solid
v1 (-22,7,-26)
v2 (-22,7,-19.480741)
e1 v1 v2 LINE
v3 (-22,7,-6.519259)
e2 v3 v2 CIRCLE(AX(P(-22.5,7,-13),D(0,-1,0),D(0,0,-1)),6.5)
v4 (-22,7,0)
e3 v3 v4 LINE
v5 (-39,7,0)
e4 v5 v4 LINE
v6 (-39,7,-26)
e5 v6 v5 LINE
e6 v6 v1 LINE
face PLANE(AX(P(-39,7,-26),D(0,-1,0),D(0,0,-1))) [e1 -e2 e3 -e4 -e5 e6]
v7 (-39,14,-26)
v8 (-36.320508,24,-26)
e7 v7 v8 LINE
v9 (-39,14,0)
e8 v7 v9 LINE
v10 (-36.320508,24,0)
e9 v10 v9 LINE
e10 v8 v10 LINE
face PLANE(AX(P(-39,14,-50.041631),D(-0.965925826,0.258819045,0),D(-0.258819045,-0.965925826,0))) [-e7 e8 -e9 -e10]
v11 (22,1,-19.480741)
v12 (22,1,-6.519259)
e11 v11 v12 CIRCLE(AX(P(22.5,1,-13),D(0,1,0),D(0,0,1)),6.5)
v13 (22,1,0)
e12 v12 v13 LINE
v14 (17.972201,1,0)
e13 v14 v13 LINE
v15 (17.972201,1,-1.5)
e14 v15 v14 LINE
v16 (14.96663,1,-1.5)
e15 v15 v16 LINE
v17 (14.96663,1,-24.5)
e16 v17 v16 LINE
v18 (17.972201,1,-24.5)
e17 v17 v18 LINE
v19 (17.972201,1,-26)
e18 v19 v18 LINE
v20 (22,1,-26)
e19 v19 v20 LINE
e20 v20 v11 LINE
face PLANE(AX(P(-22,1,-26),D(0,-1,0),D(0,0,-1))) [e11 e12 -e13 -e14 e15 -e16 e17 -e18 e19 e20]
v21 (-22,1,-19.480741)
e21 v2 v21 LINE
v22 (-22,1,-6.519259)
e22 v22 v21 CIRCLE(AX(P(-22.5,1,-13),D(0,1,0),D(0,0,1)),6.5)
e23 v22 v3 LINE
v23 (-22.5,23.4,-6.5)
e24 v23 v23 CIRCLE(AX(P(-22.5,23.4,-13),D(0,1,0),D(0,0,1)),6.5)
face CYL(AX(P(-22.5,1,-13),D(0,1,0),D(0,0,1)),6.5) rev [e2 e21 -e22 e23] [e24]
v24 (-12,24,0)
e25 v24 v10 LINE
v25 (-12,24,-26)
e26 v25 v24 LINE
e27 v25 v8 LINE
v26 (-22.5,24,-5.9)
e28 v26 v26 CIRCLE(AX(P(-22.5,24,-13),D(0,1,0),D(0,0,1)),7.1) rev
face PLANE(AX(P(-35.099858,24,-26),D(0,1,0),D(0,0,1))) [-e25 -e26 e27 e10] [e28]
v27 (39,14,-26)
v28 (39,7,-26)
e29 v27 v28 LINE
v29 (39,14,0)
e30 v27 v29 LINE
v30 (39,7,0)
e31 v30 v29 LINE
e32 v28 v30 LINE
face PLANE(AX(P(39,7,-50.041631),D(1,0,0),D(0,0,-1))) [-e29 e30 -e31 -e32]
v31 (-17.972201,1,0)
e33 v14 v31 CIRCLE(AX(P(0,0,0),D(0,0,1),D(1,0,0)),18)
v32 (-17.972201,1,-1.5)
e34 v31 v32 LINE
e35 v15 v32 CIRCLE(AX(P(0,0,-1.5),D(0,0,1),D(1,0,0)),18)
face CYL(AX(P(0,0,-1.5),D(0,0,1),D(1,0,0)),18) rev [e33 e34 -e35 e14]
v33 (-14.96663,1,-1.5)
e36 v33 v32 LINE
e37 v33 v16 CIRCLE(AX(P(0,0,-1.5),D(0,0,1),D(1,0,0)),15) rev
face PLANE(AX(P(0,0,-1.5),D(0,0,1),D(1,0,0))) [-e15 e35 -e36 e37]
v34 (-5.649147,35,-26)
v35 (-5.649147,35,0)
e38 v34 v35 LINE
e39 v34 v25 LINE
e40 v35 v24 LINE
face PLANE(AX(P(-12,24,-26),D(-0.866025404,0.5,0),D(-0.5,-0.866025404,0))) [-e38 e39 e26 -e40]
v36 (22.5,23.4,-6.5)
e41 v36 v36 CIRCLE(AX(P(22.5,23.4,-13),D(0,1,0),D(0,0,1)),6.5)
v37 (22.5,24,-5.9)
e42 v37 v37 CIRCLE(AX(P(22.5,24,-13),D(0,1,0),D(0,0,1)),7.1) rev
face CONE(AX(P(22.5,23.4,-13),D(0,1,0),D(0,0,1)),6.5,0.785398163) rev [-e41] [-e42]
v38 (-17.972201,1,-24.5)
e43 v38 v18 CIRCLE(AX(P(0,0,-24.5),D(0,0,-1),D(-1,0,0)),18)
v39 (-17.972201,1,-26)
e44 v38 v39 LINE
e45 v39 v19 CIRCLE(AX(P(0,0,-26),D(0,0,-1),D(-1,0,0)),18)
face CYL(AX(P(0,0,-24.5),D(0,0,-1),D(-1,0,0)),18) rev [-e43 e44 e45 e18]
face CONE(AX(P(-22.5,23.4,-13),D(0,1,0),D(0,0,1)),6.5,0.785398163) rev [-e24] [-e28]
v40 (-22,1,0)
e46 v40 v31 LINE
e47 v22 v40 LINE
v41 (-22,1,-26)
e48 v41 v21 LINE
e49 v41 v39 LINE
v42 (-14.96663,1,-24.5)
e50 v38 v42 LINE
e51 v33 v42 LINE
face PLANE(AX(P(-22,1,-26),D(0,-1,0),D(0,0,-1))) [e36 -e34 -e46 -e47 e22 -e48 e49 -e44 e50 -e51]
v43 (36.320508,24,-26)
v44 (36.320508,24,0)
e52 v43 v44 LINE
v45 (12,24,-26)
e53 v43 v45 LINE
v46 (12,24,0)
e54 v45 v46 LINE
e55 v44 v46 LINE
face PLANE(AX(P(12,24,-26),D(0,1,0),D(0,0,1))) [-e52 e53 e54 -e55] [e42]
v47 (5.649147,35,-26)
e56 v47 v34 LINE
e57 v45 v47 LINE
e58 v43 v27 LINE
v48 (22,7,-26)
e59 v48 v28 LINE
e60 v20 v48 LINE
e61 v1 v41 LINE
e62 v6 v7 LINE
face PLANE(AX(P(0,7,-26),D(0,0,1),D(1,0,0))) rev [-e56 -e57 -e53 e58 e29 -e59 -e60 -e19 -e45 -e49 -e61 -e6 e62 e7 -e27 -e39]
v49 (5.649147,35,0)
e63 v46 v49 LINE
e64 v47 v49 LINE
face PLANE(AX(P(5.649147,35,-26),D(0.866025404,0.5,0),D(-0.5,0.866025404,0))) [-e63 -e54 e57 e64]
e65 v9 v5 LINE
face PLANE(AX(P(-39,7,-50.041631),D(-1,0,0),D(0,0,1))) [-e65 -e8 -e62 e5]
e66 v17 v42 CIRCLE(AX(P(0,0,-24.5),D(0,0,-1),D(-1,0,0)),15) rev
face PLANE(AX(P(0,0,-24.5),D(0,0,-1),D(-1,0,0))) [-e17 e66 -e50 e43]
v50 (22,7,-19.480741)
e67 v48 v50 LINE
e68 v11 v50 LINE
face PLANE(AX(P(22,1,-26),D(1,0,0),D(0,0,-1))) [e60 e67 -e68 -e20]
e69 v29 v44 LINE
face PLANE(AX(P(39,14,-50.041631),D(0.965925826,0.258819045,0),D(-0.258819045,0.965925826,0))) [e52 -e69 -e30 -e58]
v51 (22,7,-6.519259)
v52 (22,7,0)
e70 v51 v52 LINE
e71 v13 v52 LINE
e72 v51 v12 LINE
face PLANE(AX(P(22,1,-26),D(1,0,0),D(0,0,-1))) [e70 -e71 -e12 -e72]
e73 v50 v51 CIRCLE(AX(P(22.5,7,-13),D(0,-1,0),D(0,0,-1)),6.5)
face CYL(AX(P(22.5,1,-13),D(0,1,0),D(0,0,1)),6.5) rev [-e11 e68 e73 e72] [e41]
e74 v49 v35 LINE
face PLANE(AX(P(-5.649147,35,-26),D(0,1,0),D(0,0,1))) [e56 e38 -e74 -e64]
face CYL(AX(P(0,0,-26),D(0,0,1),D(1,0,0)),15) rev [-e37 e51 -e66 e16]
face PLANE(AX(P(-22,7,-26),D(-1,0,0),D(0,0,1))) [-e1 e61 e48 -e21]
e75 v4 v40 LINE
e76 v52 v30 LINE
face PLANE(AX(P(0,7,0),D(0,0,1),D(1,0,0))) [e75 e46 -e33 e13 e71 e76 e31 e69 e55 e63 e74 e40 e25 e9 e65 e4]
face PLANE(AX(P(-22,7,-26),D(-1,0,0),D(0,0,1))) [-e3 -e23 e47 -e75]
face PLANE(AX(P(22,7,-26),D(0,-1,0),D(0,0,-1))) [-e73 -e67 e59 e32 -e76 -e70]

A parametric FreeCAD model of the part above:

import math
import FreeCAD as App
import Part
import Sketcher
Q = App.Units.Quantity


def edges_at(feature, points):
    """Names of the edges that pass closest to the given points."""
    edges = feature.Shape.Edges
    near = lambda p: min(range(len(edges)), key=lambda i: edges[i].distToShape(Part.Vertex(*p))[0])
    return sorted({f"Edge{near(p) + 1}" for p in points})


def add_polygon(sketch, points):
    """Adds a closed chain of lines whose ends are joined by coincident constraints."""
    first, n = sketch.GeometryCount, len(points)
    for a, b in zip(points, points[1:] + points[:1]):
        sketch.addGeometry(Part.LineSegment(App.Vector(*a, 0), App.Vector(*b, 0)), False)
    for i in range(n):
        sketch.addConstraint(Sketcher.Constraint("Coincident", first + i, 2, first + (i + 1) % n, 1))

doc = App.newDocument("Part")
body = doc.addObject("PartDesign::Body", "Body")

sketch1 = doc.addObject("Sketcher::SketchObject", "Sketch")
body.addObject(sketch1)
sketch1.AttachmentSupport = (doc.XY_Plane, [""])
sketch1.MapMode = "FlatFace"
sketch1.addGeometry([
    Part.LineSegment(App.Vector(-12, 24, 0), App.Vector(-35, 24, 0)),
    Part.ArcOfCircle(Part.Circle(App.Vector(0, 7, 0), App.Vector(0, 0, 1), 39), math.radians(154), math.radians(180)),
    Part.LineSegment(App.Vector(-39, 7, 0), App.Vector(-22, 7, 0)),
    Part.LineSegment(App.Vector(-22, 7, 0), App.Vector(-22, 1, 0)),
    Part.LineSegment(App.Vector(-22, 1, 0), App.Vector(22, 1, 0)),
    Part.LineSegment(App.Vector(22, 1, 0), App.Vector(22, 7, 0)),
    Part.LineSegment(App.Vector(22, 7, 0), App.Vector(39, 7, 0)),
    Part.ArcOfCircle(Part.Circle(App.Vector(0, 7, 0), App.Vector(0, 0, 1), 39), math.radians(0), math.radians(26)),
    Part.LineSegment(App.Vector(35, 24, 0), App.Vector(12, 24, 0)),
    Part.LineSegment(App.Vector(12, 24, 0), App.Vector(6, 35, 0)),
    Part.LineSegment(App.Vector(6, 35, 0), App.Vector(-6, 35, 0)),
    Part.LineSegment(App.Vector(-6, 35, 0), App.Vector(-12, 24, 0)),
], False)
sketch1.addConstraint([
    Sketcher.Constraint("Coincident", 0, 2, 1, 1),
    Sketcher.Constraint("Coincident", 1, 2, 2, 1),
    Sketcher.Constraint("Coincident", 2, 2, 3, 1),
    Sketcher.Constraint("Coincident", 3, 2, 4, 1),
    Sketcher.Constraint("Coincident", 4, 2, 5, 1),
    Sketcher.Constraint("Coincident", 5, 2, 6, 1),
    Sketcher.Constraint("Coincident", 6, 2, 7, 1),
    Sketcher.Constraint("Coincident", 7, 2, 8, 1),
    Sketcher.Constraint("Coincident", 8, 2, 9, 1),
    Sketcher.Constraint("Coincident", 9, 2, 10, 1),
    Sketcher.Constraint("Coincident", 10, 2, 11, 1),
    Sketcher.Constraint("Coincident", 11, 2, 0, 1),
    Sketcher.Constraint("Horizontal", 0),
    Sketcher.Constraint("Horizontal", 2),
    Sketcher.Constraint("Vertical", 3),
    Sketcher.Constraint("Horizontal", 4),
    Sketcher.Constraint("Vertical", 5),
    Sketcher.Constraint("Horizontal", 6),
    Sketcher.Constraint("Horizontal", 8),
    Sketcher.Constraint("Horizontal", 10),
    Sketcher.Constraint("Coincident", 7, 3, 1, 3),
    Sketcher.Constraint("Equal", 1, 7),
    Sketcher.Constraint("Symmetric", 2, 2, 5, 2, -2),
    Sketcher.Constraint("Symmetric", 0, 2, 7, 2, -2),
    Sketcher.Constraint("Horizontal", 7, 3, 1, 2),
    Sketcher.Constraint("Equal", 0, 8),
    Sketcher.Constraint("Equal", 9, 11),
    Sketcher.Constraint("Radius", 1, Q("39 mm")),
    Sketcher.Constraint("DistanceX", 2, 1, 2, 2, Q("17 mm")),
    Sketcher.Constraint("DistanceY", 3, 2, 3, 1, Q("6 mm")),
    Sketcher.Constraint("Angle", 9, Q("120 deg")),
    Sketcher.Constraint("DistanceY", -1, 1, 1, 3, Q("7 mm")),
    Sketcher.Constraint("DistanceY", -1, 1, 0, 2, Q("24 mm")),
    Sketcher.Constraint("DistanceX", -1, 1, 8, 2, Q("12 mm")),
    Sketcher.Constraint("DistanceY", -1, 1, 9, 2, Q("35 mm")),
])
pad1 = doc.addObject("PartDesign::Pad", "Pad")
body.addObject(pad1)
pad1.Profile = sketch1
pad1.Length = 26
pad1.Reversed = True

sketch2 = doc.addObject("Sketcher::SketchObject", "Sketch001")
body.addObject(sketch2)
sketch2.AttachmentSupport = (doc.XY_Plane, [""])
sketch2.MapMode = "FlatFace"
sketch2.addGeometry(Part.Circle(App.Vector(0, 0, 0), App.Vector(0, 0, 1), 15), False)
sketch2.addConstraint([
    Sketcher.Constraint("Coincident", 0, 3, -1, 1),
    Sketcher.Constraint("Diameter", 0, Q("30 mm")),
])
pocket1 = doc.addObject("PartDesign::Pocket", "Pocket")
body.addObject(pocket1)
pocket1.Profile = sketch2
pocket1.Type = "ThroughAll"

sketch3 = doc.addObject("Sketcher::SketchObject", "Sketch002")
body.addObject(sketch3)
sketch3.AttachmentSupport = (doc.XY_Plane, [""])
sketch3.MapMode = "FlatFace"
sketch3.addGeometry(Part.Circle(App.Vector(0, 0, 0), App.Vector(0, 0, 1), 18), False)
sketch3.addConstraint([
    Sketcher.Constraint("Coincident", 0, 3, -1, 1),
    Sketcher.Constraint("Diameter", 0, Q("36 mm")),
])
pocket2 = doc.addObject("PartDesign::Pocket", "Pocket001")
body.addObject(pocket2)
pocket2.Profile = sketch3
pocket2.Length = 1.5

sketch4 = doc.addObject("Sketcher::SketchObject", "Sketch003")
body.addObject(sketch4)
sketch4.AttachmentSupport = (doc.XY_Plane, [""])
sketch4.MapMode = "FlatFace"
sketch4.AttachmentOffset = App.Placement(App.Vector(0, 0, -24.5), App.Rotation())
sketch4.addGeometry(Part.Circle(App.Vector(0, 0, 0), App.Vector(0, 0, 1), 18), False)
sketch4.addConstraint([
    Sketcher.Constraint("Coincident", 0, 3, -1, 1),
    Sketcher.Constraint("Diameter", 0, Q("36 mm")),
])
pocket3 = doc.addObject("PartDesign::Pocket", "Pocket002")
body.addObject(pocket3)
pocket3.Profile = sketch4
pocket3.Length = 1.5

sketch5 = doc.addObject("Sketcher::SketchObject", "Sketch004")
body.addObject(sketch5)
sketch5.AttachmentSupport = (doc.XY_Plane, [""])
sketch5.MapMode = "FlatFace"
add_polygon(sketch5, [(-39, 14), (-39, 7), (-22, 7), (-22, 24), (-36, 24)])
add_polygon(sketch5, [(39, 7), (39, 14), (36, 24), (22, 24), (22, 7)])
sketch5.addConstraint([
    Sketcher.Constraint("Vertical", 0),
    Sketcher.Constraint("Horizontal", 1),
    Sketcher.Constraint("Vertical", 2),
    Sketcher.Constraint("Horizontal", 3),
    Sketcher.Constraint("Vertical", 5),
    Sketcher.Constraint("Horizontal", 7),
    Sketcher.Constraint("Vertical", 8),
    Sketcher.Constraint("Horizontal", 9),
    Sketcher.Constraint("Symmetric", 4, 2, 5, 2, -2),
    Sketcher.Constraint("Symmetric", 3, 2, 6, 2, -2),
    Sketcher.Constraint("Symmetric", 1, 2, 8, 2, -2),
    Sketcher.Constraint("Equal", 9, 2),
    Sketcher.Constraint("DistanceX", 1, 1, 1, 2, Q("17 mm")),
    Sketcher.Constraint("DistanceY", 0, 2, 0, 1, Q("7 mm")),
    Sketcher.Constraint("Angle", 4, Q("-105 deg")),
    Sketcher.Constraint("DistanceX", 0, 2, -1, 1, Q("39 mm")),
    Sketcher.Constraint("DistanceY", -1, 1, 0, 2, Q("7 mm")),
])
pad2 = doc.addObject("PartDesign::Pad", "Pad001")
body.addObject(pad2)
pad2.Profile = sketch5
pad2.Length = 26
pad2.Reversed = True

sketch6 = doc.addObject("Sketcher::SketchObject", "Sketch005")
body.addObject(sketch6)
sketch6.AttachmentSupport = (doc.XZ_Plane, [""])
sketch6.MapMode = "FlatFace"
sketch6.AttachmentOffset = App.Placement(App.Vector(0, 0, -24), App.Rotation())
sketch6.addGeometry([
    Part.Circle(App.Vector(-22, -13, 0), App.Vector(0, 0, 1), 6),
    Part.Circle(App.Vector(22, -13, 0), App.Vector(0, 0, 1), 6),
], False)
sketch6.addConstraint([
    Sketcher.Constraint("Equal", 0, 1),
    Sketcher.Constraint("Symmetric", 0, 3, 1, 3, -2),
    Sketcher.Constraint("Diameter", 0, Q("13 mm")),
    Sketcher.Constraint("DistanceY", 0, 3, -1, 1, Q("13 mm")),
    Sketcher.Constraint("DistanceX", 0, 3, 1, 3, Q("45 mm")),
])
pocket4 = doc.addObject("PartDesign::Pocket", "Pocket003")
body.addObject(pocket4)
pocket4.Profile = sketch6
pocket4.Type = "ThroughAll"
pocket4.Reversed = True
doc.recompute()

chamfer = doc.addObject("PartDesign::Chamfer", "Chamfer")
body.addObject(chamfer)
chamfer.Base = (pocket4, edges_at(pocket4, [(-22.5, 24, -19.5), (22.5, 24, -19.5)]))
chamfer.Size = 0.6

doc.recompute()
